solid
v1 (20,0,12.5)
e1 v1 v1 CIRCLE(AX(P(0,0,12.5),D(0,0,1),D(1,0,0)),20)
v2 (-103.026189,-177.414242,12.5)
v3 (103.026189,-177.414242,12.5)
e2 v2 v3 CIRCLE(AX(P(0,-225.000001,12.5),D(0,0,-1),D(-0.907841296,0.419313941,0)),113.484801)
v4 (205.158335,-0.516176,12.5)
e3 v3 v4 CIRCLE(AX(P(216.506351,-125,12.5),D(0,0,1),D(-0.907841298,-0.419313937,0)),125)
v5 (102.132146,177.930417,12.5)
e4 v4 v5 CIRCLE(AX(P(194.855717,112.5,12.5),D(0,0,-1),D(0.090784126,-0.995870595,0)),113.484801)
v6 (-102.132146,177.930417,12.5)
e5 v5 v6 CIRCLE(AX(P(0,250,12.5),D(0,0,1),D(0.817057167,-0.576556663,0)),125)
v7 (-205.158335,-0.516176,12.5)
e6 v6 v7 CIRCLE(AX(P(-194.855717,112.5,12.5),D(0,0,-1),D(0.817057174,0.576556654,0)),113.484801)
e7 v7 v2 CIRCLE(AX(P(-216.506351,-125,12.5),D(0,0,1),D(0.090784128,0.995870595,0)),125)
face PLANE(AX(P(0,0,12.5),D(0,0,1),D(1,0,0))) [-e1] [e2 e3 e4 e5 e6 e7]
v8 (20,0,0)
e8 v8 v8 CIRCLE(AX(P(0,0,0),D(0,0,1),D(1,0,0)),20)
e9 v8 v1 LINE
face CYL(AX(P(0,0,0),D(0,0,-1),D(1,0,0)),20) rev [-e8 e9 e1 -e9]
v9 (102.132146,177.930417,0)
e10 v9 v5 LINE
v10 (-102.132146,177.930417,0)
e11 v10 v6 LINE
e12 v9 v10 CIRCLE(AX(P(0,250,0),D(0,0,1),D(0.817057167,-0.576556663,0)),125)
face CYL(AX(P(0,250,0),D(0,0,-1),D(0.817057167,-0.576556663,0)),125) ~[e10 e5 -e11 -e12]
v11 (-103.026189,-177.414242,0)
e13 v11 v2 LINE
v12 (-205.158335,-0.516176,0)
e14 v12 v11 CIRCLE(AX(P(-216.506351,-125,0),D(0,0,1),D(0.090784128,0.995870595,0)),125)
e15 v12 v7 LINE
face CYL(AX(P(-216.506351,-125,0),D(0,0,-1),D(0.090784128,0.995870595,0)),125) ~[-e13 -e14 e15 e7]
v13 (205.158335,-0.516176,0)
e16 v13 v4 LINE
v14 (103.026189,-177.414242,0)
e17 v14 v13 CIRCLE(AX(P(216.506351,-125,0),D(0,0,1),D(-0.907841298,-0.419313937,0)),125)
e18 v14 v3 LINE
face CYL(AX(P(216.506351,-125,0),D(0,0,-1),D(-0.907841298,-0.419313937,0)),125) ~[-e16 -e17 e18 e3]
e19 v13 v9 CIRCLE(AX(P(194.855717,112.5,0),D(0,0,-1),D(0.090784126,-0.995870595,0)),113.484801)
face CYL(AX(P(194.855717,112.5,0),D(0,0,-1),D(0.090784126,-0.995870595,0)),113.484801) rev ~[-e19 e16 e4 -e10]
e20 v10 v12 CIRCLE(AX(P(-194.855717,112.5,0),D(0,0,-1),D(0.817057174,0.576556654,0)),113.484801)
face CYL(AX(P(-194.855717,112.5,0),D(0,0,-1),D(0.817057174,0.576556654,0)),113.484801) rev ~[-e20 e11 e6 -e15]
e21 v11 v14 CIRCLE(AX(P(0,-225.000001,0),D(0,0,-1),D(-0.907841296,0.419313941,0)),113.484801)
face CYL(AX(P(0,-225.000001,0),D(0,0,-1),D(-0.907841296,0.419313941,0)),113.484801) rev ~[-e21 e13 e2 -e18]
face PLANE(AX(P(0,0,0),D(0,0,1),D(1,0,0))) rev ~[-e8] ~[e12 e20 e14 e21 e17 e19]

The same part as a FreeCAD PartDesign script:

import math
import FreeCAD as App
import Part
import Sketcher
from FreeCAD import Vector
Q = App.Units.Quantity

doc = App.newDocument("Part")
params = doc.addObject("Spreadsheet::Sheet", "Params")
for row, (alias, value) in enumerate([
    ("sketch1_diameter", "40 mm"),
    ("sketch1_radius", "125 mm"),
    ("pad1_length", "12.5 mm"),
], start=1):
    params.set(f"A{row}", alias)
    params.set(f"B{row}", "=" + value)
    params.setAlias(f"B{row}", alias)

body = doc.addObject("PartDesign::Body", "Body")

sketch1 = body.newObject("Sketcher::SketchObject", "Sketch")
sketch1.AttachmentSupport = (doc.getObject("XY_Plane"), [""])
sketch1.MapMode = "FlatFace"
sketch1.addGeometry(Part.ArcOfCircle(Part.Circle(Vector(194.855717, 112.5, 0), Vector(0, 0, 1), 113.484801), math.radians(144.791281), math.radians(275.208719)), False)
sketch1.addGeometry(Part.ArcOfCircle(Part.Circle(Vector(0, 250, 0), Vector(0, 0, 1), 125), math.radians(-35.208719), math.radians(215.208719)), False)
sketch1.addGeometry(Part.ArcOfCircle(Part.Circle(Vector(-194.855717, 112.5, 0), Vector(0, 0, 1), 113.484801), math.radians(-95.208719), math.radians(35.208719)), False)
sketch1.addGeometry(Part.ArcOfCircle(Part.Circle(Vector(-216.506351, -125, 0), Vector(0, 0, 1), 125), math.radians(84.791281), math.radians(335.208719)), False)
sketch1.addGeometry(Part.ArcOfCircle(Part.Circle(Vector(0, -225.000001, 0), Vector(0, 0, 1), 113.484801), math.radians(24.791281), math.radians(155.208719)), False)
sketch1.addGeometry(Part.ArcOfCircle(Part.Circle(Vector(216.506351, -125, 0), Vector(0, 0, 1), 125), math.radians(-155.208719), math.radians(95.208719)), False)
sketch1.addGeometry(Part.Circle(Vector(0, 0, 0), Vector(0, 0, 1), 20), False)
sketch1.addConstraint(Sketcher.Constraint("Tangent", 0, 1, 1, 1))
sketch1.addConstraint(Sketcher.Constraint("Tangent", 1, 2, 2, 2))
sketch1.addConstraint(Sketcher.Constraint("Tangent", 2, 1, 3, 1))
sketch1.addConstraint(Sketcher.Constraint("Tangent", 3, 2, 4, 2))
sketch1.addConstraint(Sketcher.Constraint("Tangent", 4, 1, 5, 1))
sketch1.addConstraint(Sketcher.Constraint("Tangent", 5, 2, 0, 2))
sketch1.addConstraint(Sketcher.Constraint("Coincident", 6, 3, -1, 1))
sketch1.addConstraint(Sketcher.Constraint("Equal", 0, 2))
sketch1.addConstraint(Sketcher.Constraint("Equal", 1, 3))
sketch1.addConstraint(Sketcher.Constraint("Equal", 2, 4))
sketch1.addConstraint(Sketcher.Constraint("Equal", 3, 5))
sketch1.addConstraint(Sketcher.Constraint("Symmetric", 0, 3, 2, 3, -2))
sketch1.addConstraint(Sketcher.Constraint("PointOnObject", 4, 3, -2))
sketch1.addConstraint(Sketcher.Constraint("Diameter", 6, Q("40 mm")))
sketch1.addConstraint(Sketcher.Constraint("Radius", 1, Q("125 mm")))
sketch1.addConstraint(Sketcher.Constraint("DistanceY", -1, 1, 1, 3, Q("250 mm")))
sketch1.addConstraint(Sketcher.Constraint("DistanceY", 3, 3, -1, 1, Q("125 mm")))
sketch1.addConstraint(Sketcher.Constraint("DistanceY", 4, 3, -1, 1, Q("225.000001 mm")))
sketch1.addConstraint(Sketcher.Constraint("DistanceY", -1, 1, 0, 3, Q("112.5 mm")))
sketch1.setExpression("Constraints[13]", "Params.sketch1_diameter")
sketch1.setExpression("Constraints[14]", "Params.sketch1_radius")
pad1 = body.newObject("PartDesign::Pad", "Pad")
pad1.Profile = sketch1
pad1.setExpression("Length", "Params.pad1_length")

doc.recompute()
